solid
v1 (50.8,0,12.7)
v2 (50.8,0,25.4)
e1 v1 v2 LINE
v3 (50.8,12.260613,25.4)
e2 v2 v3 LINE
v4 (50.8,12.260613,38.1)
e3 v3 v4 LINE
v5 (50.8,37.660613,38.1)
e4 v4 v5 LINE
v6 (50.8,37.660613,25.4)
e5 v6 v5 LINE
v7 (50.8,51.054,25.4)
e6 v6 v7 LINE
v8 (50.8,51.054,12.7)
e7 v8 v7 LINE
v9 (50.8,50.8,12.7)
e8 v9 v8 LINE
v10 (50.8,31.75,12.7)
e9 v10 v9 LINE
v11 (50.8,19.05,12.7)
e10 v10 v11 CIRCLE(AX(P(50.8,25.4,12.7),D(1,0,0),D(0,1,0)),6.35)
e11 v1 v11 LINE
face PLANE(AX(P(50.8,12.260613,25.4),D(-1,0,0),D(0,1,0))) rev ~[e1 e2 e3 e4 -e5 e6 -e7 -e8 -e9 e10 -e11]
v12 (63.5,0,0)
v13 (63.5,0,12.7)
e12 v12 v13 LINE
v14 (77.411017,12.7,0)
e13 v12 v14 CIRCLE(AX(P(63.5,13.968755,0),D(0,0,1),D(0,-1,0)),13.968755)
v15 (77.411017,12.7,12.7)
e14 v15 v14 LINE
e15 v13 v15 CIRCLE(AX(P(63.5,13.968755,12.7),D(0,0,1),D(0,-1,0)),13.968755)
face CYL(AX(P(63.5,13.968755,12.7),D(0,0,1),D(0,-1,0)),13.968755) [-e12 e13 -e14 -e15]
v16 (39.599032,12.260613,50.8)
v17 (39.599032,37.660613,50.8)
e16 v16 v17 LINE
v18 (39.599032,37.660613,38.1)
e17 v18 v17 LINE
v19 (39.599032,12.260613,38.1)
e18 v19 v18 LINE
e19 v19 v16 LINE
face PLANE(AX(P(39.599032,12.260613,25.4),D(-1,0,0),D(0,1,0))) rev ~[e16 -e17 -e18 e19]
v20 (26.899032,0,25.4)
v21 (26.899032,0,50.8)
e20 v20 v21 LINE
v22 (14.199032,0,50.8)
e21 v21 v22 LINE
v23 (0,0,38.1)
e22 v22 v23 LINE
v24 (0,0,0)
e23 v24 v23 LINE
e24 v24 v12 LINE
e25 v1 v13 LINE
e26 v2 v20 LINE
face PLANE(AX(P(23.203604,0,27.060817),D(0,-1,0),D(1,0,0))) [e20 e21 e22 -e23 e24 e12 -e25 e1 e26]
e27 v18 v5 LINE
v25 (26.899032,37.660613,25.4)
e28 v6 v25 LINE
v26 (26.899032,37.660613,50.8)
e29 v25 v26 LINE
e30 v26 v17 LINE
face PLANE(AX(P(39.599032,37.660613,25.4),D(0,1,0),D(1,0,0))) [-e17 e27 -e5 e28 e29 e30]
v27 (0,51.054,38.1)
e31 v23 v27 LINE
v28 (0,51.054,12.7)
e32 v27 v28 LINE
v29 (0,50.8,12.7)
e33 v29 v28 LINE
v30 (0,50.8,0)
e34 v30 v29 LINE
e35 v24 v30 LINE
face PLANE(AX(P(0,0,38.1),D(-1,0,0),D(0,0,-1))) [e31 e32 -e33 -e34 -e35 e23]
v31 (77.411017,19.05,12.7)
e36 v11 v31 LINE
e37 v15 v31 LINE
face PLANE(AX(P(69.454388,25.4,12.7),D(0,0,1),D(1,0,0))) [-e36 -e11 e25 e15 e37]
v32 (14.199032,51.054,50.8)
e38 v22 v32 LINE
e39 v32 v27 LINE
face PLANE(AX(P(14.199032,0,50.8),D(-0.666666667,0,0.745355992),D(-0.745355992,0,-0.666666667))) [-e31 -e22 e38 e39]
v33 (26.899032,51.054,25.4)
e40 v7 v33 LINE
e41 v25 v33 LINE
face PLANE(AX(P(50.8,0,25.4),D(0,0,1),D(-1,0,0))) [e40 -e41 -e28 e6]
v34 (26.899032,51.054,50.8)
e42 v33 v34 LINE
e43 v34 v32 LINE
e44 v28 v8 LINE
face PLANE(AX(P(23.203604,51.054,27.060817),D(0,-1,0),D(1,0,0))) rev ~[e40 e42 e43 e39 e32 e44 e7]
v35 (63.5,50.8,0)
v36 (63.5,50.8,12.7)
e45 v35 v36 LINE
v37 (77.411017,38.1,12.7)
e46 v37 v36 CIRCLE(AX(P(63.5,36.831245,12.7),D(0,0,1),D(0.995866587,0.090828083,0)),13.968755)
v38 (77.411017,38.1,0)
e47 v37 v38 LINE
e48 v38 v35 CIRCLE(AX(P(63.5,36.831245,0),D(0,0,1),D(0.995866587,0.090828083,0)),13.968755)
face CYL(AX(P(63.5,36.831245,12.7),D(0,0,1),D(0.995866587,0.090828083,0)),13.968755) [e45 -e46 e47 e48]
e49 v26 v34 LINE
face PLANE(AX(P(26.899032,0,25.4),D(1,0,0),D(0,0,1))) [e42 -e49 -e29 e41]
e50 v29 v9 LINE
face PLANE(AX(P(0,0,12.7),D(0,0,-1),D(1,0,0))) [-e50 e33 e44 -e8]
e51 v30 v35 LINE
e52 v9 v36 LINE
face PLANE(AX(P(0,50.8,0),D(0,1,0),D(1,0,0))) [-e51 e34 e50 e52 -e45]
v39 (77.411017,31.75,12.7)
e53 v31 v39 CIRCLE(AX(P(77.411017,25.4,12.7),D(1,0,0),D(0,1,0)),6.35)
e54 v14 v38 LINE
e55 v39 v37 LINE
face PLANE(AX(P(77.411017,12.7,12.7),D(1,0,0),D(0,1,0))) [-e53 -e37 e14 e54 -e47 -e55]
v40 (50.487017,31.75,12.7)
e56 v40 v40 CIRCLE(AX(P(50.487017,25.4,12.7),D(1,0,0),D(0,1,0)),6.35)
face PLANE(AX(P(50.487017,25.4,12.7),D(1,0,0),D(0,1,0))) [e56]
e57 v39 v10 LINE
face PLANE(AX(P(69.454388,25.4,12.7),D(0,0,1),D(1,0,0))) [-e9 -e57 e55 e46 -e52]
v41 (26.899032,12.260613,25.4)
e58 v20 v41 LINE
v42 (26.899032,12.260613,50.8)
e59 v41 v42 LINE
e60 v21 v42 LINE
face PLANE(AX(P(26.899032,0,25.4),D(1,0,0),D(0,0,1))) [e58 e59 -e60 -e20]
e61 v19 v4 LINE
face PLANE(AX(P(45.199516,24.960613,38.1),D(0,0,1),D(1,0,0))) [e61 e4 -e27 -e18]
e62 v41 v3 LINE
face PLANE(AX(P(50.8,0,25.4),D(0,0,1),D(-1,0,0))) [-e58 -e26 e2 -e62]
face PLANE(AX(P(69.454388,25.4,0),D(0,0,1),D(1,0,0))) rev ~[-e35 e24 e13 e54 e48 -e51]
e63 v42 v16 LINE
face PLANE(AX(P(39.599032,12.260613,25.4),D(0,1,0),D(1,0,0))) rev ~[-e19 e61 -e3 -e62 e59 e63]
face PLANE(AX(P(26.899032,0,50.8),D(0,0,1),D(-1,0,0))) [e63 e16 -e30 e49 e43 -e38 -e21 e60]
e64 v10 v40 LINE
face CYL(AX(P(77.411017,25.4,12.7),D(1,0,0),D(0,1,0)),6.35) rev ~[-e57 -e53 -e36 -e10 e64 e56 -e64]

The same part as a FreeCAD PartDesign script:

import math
import FreeCAD as App
import Part
import Sketcher
from FreeCAD import Vector
Q = App.Units.Quantity


def add_polygon(sketch, points):
    """Adds a closed chain of lines whose ends are joined by coincident constraints."""
    first, n = sketch.GeometryCount, len(points)
    for a, b in zip(points, points[1:] + points[:1]):
        sketch.addGeometry(Part.LineSegment(App.Vector(*a, 0), App.Vector(*b, 0)), False)
    for i in range(n):
        sketch.addConstraint(Sketcher.Constraint("Coincident", first + i, 2, first + (i + 1) % n, 1))

doc = App.newDocument("Part")
body = doc.addObject("PartDesign::Body", "Body")

# Sketch on XY plane
sketch1 = body.newObject("Sketcher::SketchObject", "Sketch")
sketch1.AttachmentSupport = (doc.getObject("XY_Plane"), [""])
sketch1.MapMode = "FlatFace"
add_polygon(sketch1, [(0, 51), (0, 0), (64, 0), (64, 51)])  # lines 0-3
sketch1.addConstraint(Sketcher.Constraint("Vertical", 0))
sketch1.addConstraint(Sketcher.Constraint("Horizontal", 1))
sketch1.addConstraint(Sketcher.Constraint("Vertical", 2))
sketch1.addConstraint(Sketcher.Constraint("Horizontal", 3))
sketch1.addConstraint(Sketcher.Constraint("Coincident", 0, 2, -1, 1))
sketch1.addConstraint(Sketcher.Constraint("DistanceY", 0, 2, 0, 1, Q("2 in")))
sketch1.addConstraint(Sketcher.Constraint("DistanceX", 1, 1, 1, 2, Q("2.5 in")))
pad1 = body.newObject("PartDesign::Pad", "Pad")
pad1.Profile = sketch1
pad1.Length = Q("0.5 in")

# Sketch on XY plane
sketch2 = body.newObject("Sketcher::SketchObject", "Sketch001")
sketch2.AttachmentSupport = (doc.getObject("XY_Plane"), [""])
sketch2.MapMode = "FlatFace"
sketch2.AttachmentOffset = App.Placement(Vector(0, 0, 0.5 * 25.4), App.Rotation())
sketch2.addGeometry(Part.LineSegment(Vector(77, 13, 0), Vector(77, 38, 0)), False)
sketch2.addGeometry(Part.ArcOfCircle(Part.Circle(Vector(64, 37, 0), Vector(0, 0, 1), 14), math.radians(5), math.radians(90)), False)
sketch2.addGeometry(Part.LineSegment(Vector(64, 51, 0), Vector(64, 0, 0)), False)
sketch2.addGeometry(Part.ArcOfCircle(Part.Circle(Vector(64, 14, 0), Vector(0, 0, 1), 14), math.radians(-90), math.radians(-5)), False)
sketch2.addConstraint(Sketcher.Constraint("Coincident", 0, 2, 1, 1))
sketch2.addConstraint(Sketcher.Constraint("Coincident", 1, 2, 2, 1))
sketch2.addConstraint(Sketcher.Constraint("Coincident", 2, 2, 3, 1))
sketch2.addConstraint(Sketcher.Constraint("Coincident", 3, 2, 0, 1))
sketch2.addConstraint(Sketcher.Constraint("Vertical", 0))
sketch2.addConstraint(Sketcher.Constraint("Vertical", 2))
sketch2.addConstraint(Sketcher.Constraint("Equal", 1, 3))
sketch2.addConstraint(Sketcher.Constraint("PointOnObject", 2, 2, -1))
sketch2.addConstraint(Sketcher.Constraint("Vertical", 1, 3, 3, 3))
sketch2.addConstraint(Sketcher.Constraint("Vertical", 3, 3, 1, 2))
sketch2.addConstraint(Sketcher.Constraint("DistanceY", 0, 1, 0, 2, Q("1 in")))
sketch2.addConstraint(Sketcher.Constraint("DistanceY", 2, 2, 2, 1, Q("2 in")))
sketch2.addConstraint(Sketcher.Constraint("DistanceX", -1, 1, 1, 3, Q("2.5 in")))
sketch2.addConstraint(Sketcher.Constraint("Radius", 1, Q("13.968755 mm")))
pad2 = body.newObject("PartDesign::Pad", "Pad001")
pad2.Profile = sketch2
pad2.Length = Q("0.5 in")
pad2.Reversed = True

# Sketch on XZ plane
sketch3 = body.newObject("Sketcher::SketchObject", "Sketch002")
sketch3.AttachmentSupport = (doc.getObject("XZ_Plane"), [""])
sketch3.MapMode = "FlatFace"
add_polygon(sketch3, [(0, 38), (0, 13), (51, 13), (51, 25), (27, 25), (27, 51), (14, 51)])  # lines 0-6
sketch3.addConstraint(Sketcher.Constraint("Vertical", 0))
sketch3.addConstraint(Sketcher.Constraint("Horizontal", 1))
sketch3.addConstraint(Sketcher.Constraint("Vertical", 2))
sketch3.addConstraint(Sketcher.Constraint("Horizontal", 3))
sketch3.addConstraint(Sketcher.Constraint("Vertical", 4))
sketch3.addConstraint(Sketcher.Constraint("Horizontal", 5))
sketch3.addConstraint(Sketcher.Constraint("PointOnObject", 0, 2, -2))
sketch3.addConstraint(Sketcher.Constraint("Equal", 5, 2))
sketch3.addConstraint(Sketcher.Constraint("Equal", 0, 4))
sketch3.addConstraint(Sketcher.Constraint("DistanceX", 1, 1, 1, 2, Q("2 in")))
sketch3.addConstraint(Sketcher.Constraint("DistanceY", 0, 2, 0, 1, Q("1 in")))
sketch3.addConstraint(Sketcher.Constraint("DistanceX", 5, 2, 5, 1, Q("0.5 in")))
sketch3.addConstraint(Sketcher.Constraint("DistanceY", -1, 1, 2, 2, Q("1 in")))
sketch3.addConstraint(Sketcher.Constraint("Distance", 6, Q("0.75 in")))
pad3 = body.newObject("PartDesign::Pad", "Pad002")
pad3.Profile = sketch3
pad3.Length = Q("2.01 in")
pad3.Reversed = True

# Sketch on XY plane
sketch4 = body.newObject("Sketcher::SketchObject", "Sketch003")
sketch4.AttachmentSupport = (doc.getObject("XY_Plane"), [""])
sketch4.MapMode = "FlatFace"
sketch4.AttachmentOffset = App.Placement(Vector(0, 0, 1 * 25.4), App.Rotation())
add_polygon(sketch4, [(27, 38), (27, 12), (40, 12), (40, 38)])  # lines 0-3
sketch4.addConstraint(Sketcher.Constraint("Vertical", 0))
sketch4.addConstraint(Sketcher.Constraint("Horizontal", 1))
sketch4.addConstraint(Sketcher.Constraint("Vertical", 2))
sketch4.addConstraint(Sketcher.Constraint("Horizontal", 3))
sketch4.addConstraint(Sketcher.Constraint("DistanceY", 0, 2, 0, 1, Q("1 in")))
sketch4.addConstraint(Sketcher.Constraint("DistanceX", 1, 1, 1, 2, Q("0.5 in")))
sketch4.addConstraint(Sketcher.Constraint("DistanceX", -1, 1, 0, 2, Q("26.899032 mm")))
sketch4.addConstraint(Sketcher.Constraint("DistanceY", -1, 1, 0, 2, Q("12.260613 mm")))
pad4 = body.newObject("PartDesign::Pad", "Pad003")
pad4.Profile = sketch4
pad4.Length = Q("1 in")

# Sketch on XY plane
sketch5 = body.newObject("Sketcher::SketchObject", "Sketch004")
sketch5.AttachmentSupport = (doc.getObject("XY_Plane"), [""])
sketch5.MapMode = "FlatFace"
sketch5.AttachmentOffset = App.Placement(Vector(0, 0, 1 * 25.4), App.Rotation())
add_polygon(sketch5, [(40, 38), (40, 12), (51, 12), (51, 38)])  # lines 0-3
sketch5.addConstraint(Sketcher.Constraint("Vertical", 0))
sketch5.addConstraint(Sketcher.Constraint("Horizontal", 1))
sketch5.addConstraint(Sketcher.Constraint("Vertical", 2))
sketch5.addConstraint(Sketcher.Constraint("Horizontal", 3))
sketch5.addConstraint(Sketcher.Constraint("DistanceY", 0, 2, 0, 1, Q("1 in")))
sketch5.addConstraint(Sketcher.Constraint("DistanceX", -1, 1, 1, 2, Q("2 in")))
sketch5.addConstraint(Sketcher.Constraint("DistanceX", 1, 1, 1, 2, Q("11.200968 mm")))
sketch5.addConstraint(Sketcher.Constraint("DistanceY", -1, 1, 0, 2, Q("12.260613 mm")))
pad5 = body.newObject("PartDesign::Pad", "Pad004")
pad5.Profile = sketch5
pad5.Length = Q("0.5 in")

# Sketch on YZ plane
sketch6 = body.newObject("Sketcher::SketchObject", "Sketch005")
sketch6.AttachmentSupport = (doc.getObject("YZ_Plane"), [""])
sketch6.MapMode = "FlatFace"
sketch6.AttachmentOffset = App.Placement(Vector(0, 0, 77.411017), App.Rotation())
sketch6.addGeometry(Part.Circle(Vector(25, 13, 0), Vector(0, 0, 1), 6), False)
sketch6.addConstraint(Sketcher.Constraint("Diameter", 0, Q("0.5 in")))
sketch6.addConstraint(Sketcher.Constraint("DistanceX", -1, 1, 0, 3, Q("1 in")))
sketch6.addConstraint(Sketcher.Constraint("DistanceY", -1, 1, 0, 3, Q("0.5 in")))
pocket1 = body.newObject("PartDesign::Pocket", "Pocket")
pocket1.Profile = sketch6
pocket1.Length = Q("1.06 in")

doc.recompute()
